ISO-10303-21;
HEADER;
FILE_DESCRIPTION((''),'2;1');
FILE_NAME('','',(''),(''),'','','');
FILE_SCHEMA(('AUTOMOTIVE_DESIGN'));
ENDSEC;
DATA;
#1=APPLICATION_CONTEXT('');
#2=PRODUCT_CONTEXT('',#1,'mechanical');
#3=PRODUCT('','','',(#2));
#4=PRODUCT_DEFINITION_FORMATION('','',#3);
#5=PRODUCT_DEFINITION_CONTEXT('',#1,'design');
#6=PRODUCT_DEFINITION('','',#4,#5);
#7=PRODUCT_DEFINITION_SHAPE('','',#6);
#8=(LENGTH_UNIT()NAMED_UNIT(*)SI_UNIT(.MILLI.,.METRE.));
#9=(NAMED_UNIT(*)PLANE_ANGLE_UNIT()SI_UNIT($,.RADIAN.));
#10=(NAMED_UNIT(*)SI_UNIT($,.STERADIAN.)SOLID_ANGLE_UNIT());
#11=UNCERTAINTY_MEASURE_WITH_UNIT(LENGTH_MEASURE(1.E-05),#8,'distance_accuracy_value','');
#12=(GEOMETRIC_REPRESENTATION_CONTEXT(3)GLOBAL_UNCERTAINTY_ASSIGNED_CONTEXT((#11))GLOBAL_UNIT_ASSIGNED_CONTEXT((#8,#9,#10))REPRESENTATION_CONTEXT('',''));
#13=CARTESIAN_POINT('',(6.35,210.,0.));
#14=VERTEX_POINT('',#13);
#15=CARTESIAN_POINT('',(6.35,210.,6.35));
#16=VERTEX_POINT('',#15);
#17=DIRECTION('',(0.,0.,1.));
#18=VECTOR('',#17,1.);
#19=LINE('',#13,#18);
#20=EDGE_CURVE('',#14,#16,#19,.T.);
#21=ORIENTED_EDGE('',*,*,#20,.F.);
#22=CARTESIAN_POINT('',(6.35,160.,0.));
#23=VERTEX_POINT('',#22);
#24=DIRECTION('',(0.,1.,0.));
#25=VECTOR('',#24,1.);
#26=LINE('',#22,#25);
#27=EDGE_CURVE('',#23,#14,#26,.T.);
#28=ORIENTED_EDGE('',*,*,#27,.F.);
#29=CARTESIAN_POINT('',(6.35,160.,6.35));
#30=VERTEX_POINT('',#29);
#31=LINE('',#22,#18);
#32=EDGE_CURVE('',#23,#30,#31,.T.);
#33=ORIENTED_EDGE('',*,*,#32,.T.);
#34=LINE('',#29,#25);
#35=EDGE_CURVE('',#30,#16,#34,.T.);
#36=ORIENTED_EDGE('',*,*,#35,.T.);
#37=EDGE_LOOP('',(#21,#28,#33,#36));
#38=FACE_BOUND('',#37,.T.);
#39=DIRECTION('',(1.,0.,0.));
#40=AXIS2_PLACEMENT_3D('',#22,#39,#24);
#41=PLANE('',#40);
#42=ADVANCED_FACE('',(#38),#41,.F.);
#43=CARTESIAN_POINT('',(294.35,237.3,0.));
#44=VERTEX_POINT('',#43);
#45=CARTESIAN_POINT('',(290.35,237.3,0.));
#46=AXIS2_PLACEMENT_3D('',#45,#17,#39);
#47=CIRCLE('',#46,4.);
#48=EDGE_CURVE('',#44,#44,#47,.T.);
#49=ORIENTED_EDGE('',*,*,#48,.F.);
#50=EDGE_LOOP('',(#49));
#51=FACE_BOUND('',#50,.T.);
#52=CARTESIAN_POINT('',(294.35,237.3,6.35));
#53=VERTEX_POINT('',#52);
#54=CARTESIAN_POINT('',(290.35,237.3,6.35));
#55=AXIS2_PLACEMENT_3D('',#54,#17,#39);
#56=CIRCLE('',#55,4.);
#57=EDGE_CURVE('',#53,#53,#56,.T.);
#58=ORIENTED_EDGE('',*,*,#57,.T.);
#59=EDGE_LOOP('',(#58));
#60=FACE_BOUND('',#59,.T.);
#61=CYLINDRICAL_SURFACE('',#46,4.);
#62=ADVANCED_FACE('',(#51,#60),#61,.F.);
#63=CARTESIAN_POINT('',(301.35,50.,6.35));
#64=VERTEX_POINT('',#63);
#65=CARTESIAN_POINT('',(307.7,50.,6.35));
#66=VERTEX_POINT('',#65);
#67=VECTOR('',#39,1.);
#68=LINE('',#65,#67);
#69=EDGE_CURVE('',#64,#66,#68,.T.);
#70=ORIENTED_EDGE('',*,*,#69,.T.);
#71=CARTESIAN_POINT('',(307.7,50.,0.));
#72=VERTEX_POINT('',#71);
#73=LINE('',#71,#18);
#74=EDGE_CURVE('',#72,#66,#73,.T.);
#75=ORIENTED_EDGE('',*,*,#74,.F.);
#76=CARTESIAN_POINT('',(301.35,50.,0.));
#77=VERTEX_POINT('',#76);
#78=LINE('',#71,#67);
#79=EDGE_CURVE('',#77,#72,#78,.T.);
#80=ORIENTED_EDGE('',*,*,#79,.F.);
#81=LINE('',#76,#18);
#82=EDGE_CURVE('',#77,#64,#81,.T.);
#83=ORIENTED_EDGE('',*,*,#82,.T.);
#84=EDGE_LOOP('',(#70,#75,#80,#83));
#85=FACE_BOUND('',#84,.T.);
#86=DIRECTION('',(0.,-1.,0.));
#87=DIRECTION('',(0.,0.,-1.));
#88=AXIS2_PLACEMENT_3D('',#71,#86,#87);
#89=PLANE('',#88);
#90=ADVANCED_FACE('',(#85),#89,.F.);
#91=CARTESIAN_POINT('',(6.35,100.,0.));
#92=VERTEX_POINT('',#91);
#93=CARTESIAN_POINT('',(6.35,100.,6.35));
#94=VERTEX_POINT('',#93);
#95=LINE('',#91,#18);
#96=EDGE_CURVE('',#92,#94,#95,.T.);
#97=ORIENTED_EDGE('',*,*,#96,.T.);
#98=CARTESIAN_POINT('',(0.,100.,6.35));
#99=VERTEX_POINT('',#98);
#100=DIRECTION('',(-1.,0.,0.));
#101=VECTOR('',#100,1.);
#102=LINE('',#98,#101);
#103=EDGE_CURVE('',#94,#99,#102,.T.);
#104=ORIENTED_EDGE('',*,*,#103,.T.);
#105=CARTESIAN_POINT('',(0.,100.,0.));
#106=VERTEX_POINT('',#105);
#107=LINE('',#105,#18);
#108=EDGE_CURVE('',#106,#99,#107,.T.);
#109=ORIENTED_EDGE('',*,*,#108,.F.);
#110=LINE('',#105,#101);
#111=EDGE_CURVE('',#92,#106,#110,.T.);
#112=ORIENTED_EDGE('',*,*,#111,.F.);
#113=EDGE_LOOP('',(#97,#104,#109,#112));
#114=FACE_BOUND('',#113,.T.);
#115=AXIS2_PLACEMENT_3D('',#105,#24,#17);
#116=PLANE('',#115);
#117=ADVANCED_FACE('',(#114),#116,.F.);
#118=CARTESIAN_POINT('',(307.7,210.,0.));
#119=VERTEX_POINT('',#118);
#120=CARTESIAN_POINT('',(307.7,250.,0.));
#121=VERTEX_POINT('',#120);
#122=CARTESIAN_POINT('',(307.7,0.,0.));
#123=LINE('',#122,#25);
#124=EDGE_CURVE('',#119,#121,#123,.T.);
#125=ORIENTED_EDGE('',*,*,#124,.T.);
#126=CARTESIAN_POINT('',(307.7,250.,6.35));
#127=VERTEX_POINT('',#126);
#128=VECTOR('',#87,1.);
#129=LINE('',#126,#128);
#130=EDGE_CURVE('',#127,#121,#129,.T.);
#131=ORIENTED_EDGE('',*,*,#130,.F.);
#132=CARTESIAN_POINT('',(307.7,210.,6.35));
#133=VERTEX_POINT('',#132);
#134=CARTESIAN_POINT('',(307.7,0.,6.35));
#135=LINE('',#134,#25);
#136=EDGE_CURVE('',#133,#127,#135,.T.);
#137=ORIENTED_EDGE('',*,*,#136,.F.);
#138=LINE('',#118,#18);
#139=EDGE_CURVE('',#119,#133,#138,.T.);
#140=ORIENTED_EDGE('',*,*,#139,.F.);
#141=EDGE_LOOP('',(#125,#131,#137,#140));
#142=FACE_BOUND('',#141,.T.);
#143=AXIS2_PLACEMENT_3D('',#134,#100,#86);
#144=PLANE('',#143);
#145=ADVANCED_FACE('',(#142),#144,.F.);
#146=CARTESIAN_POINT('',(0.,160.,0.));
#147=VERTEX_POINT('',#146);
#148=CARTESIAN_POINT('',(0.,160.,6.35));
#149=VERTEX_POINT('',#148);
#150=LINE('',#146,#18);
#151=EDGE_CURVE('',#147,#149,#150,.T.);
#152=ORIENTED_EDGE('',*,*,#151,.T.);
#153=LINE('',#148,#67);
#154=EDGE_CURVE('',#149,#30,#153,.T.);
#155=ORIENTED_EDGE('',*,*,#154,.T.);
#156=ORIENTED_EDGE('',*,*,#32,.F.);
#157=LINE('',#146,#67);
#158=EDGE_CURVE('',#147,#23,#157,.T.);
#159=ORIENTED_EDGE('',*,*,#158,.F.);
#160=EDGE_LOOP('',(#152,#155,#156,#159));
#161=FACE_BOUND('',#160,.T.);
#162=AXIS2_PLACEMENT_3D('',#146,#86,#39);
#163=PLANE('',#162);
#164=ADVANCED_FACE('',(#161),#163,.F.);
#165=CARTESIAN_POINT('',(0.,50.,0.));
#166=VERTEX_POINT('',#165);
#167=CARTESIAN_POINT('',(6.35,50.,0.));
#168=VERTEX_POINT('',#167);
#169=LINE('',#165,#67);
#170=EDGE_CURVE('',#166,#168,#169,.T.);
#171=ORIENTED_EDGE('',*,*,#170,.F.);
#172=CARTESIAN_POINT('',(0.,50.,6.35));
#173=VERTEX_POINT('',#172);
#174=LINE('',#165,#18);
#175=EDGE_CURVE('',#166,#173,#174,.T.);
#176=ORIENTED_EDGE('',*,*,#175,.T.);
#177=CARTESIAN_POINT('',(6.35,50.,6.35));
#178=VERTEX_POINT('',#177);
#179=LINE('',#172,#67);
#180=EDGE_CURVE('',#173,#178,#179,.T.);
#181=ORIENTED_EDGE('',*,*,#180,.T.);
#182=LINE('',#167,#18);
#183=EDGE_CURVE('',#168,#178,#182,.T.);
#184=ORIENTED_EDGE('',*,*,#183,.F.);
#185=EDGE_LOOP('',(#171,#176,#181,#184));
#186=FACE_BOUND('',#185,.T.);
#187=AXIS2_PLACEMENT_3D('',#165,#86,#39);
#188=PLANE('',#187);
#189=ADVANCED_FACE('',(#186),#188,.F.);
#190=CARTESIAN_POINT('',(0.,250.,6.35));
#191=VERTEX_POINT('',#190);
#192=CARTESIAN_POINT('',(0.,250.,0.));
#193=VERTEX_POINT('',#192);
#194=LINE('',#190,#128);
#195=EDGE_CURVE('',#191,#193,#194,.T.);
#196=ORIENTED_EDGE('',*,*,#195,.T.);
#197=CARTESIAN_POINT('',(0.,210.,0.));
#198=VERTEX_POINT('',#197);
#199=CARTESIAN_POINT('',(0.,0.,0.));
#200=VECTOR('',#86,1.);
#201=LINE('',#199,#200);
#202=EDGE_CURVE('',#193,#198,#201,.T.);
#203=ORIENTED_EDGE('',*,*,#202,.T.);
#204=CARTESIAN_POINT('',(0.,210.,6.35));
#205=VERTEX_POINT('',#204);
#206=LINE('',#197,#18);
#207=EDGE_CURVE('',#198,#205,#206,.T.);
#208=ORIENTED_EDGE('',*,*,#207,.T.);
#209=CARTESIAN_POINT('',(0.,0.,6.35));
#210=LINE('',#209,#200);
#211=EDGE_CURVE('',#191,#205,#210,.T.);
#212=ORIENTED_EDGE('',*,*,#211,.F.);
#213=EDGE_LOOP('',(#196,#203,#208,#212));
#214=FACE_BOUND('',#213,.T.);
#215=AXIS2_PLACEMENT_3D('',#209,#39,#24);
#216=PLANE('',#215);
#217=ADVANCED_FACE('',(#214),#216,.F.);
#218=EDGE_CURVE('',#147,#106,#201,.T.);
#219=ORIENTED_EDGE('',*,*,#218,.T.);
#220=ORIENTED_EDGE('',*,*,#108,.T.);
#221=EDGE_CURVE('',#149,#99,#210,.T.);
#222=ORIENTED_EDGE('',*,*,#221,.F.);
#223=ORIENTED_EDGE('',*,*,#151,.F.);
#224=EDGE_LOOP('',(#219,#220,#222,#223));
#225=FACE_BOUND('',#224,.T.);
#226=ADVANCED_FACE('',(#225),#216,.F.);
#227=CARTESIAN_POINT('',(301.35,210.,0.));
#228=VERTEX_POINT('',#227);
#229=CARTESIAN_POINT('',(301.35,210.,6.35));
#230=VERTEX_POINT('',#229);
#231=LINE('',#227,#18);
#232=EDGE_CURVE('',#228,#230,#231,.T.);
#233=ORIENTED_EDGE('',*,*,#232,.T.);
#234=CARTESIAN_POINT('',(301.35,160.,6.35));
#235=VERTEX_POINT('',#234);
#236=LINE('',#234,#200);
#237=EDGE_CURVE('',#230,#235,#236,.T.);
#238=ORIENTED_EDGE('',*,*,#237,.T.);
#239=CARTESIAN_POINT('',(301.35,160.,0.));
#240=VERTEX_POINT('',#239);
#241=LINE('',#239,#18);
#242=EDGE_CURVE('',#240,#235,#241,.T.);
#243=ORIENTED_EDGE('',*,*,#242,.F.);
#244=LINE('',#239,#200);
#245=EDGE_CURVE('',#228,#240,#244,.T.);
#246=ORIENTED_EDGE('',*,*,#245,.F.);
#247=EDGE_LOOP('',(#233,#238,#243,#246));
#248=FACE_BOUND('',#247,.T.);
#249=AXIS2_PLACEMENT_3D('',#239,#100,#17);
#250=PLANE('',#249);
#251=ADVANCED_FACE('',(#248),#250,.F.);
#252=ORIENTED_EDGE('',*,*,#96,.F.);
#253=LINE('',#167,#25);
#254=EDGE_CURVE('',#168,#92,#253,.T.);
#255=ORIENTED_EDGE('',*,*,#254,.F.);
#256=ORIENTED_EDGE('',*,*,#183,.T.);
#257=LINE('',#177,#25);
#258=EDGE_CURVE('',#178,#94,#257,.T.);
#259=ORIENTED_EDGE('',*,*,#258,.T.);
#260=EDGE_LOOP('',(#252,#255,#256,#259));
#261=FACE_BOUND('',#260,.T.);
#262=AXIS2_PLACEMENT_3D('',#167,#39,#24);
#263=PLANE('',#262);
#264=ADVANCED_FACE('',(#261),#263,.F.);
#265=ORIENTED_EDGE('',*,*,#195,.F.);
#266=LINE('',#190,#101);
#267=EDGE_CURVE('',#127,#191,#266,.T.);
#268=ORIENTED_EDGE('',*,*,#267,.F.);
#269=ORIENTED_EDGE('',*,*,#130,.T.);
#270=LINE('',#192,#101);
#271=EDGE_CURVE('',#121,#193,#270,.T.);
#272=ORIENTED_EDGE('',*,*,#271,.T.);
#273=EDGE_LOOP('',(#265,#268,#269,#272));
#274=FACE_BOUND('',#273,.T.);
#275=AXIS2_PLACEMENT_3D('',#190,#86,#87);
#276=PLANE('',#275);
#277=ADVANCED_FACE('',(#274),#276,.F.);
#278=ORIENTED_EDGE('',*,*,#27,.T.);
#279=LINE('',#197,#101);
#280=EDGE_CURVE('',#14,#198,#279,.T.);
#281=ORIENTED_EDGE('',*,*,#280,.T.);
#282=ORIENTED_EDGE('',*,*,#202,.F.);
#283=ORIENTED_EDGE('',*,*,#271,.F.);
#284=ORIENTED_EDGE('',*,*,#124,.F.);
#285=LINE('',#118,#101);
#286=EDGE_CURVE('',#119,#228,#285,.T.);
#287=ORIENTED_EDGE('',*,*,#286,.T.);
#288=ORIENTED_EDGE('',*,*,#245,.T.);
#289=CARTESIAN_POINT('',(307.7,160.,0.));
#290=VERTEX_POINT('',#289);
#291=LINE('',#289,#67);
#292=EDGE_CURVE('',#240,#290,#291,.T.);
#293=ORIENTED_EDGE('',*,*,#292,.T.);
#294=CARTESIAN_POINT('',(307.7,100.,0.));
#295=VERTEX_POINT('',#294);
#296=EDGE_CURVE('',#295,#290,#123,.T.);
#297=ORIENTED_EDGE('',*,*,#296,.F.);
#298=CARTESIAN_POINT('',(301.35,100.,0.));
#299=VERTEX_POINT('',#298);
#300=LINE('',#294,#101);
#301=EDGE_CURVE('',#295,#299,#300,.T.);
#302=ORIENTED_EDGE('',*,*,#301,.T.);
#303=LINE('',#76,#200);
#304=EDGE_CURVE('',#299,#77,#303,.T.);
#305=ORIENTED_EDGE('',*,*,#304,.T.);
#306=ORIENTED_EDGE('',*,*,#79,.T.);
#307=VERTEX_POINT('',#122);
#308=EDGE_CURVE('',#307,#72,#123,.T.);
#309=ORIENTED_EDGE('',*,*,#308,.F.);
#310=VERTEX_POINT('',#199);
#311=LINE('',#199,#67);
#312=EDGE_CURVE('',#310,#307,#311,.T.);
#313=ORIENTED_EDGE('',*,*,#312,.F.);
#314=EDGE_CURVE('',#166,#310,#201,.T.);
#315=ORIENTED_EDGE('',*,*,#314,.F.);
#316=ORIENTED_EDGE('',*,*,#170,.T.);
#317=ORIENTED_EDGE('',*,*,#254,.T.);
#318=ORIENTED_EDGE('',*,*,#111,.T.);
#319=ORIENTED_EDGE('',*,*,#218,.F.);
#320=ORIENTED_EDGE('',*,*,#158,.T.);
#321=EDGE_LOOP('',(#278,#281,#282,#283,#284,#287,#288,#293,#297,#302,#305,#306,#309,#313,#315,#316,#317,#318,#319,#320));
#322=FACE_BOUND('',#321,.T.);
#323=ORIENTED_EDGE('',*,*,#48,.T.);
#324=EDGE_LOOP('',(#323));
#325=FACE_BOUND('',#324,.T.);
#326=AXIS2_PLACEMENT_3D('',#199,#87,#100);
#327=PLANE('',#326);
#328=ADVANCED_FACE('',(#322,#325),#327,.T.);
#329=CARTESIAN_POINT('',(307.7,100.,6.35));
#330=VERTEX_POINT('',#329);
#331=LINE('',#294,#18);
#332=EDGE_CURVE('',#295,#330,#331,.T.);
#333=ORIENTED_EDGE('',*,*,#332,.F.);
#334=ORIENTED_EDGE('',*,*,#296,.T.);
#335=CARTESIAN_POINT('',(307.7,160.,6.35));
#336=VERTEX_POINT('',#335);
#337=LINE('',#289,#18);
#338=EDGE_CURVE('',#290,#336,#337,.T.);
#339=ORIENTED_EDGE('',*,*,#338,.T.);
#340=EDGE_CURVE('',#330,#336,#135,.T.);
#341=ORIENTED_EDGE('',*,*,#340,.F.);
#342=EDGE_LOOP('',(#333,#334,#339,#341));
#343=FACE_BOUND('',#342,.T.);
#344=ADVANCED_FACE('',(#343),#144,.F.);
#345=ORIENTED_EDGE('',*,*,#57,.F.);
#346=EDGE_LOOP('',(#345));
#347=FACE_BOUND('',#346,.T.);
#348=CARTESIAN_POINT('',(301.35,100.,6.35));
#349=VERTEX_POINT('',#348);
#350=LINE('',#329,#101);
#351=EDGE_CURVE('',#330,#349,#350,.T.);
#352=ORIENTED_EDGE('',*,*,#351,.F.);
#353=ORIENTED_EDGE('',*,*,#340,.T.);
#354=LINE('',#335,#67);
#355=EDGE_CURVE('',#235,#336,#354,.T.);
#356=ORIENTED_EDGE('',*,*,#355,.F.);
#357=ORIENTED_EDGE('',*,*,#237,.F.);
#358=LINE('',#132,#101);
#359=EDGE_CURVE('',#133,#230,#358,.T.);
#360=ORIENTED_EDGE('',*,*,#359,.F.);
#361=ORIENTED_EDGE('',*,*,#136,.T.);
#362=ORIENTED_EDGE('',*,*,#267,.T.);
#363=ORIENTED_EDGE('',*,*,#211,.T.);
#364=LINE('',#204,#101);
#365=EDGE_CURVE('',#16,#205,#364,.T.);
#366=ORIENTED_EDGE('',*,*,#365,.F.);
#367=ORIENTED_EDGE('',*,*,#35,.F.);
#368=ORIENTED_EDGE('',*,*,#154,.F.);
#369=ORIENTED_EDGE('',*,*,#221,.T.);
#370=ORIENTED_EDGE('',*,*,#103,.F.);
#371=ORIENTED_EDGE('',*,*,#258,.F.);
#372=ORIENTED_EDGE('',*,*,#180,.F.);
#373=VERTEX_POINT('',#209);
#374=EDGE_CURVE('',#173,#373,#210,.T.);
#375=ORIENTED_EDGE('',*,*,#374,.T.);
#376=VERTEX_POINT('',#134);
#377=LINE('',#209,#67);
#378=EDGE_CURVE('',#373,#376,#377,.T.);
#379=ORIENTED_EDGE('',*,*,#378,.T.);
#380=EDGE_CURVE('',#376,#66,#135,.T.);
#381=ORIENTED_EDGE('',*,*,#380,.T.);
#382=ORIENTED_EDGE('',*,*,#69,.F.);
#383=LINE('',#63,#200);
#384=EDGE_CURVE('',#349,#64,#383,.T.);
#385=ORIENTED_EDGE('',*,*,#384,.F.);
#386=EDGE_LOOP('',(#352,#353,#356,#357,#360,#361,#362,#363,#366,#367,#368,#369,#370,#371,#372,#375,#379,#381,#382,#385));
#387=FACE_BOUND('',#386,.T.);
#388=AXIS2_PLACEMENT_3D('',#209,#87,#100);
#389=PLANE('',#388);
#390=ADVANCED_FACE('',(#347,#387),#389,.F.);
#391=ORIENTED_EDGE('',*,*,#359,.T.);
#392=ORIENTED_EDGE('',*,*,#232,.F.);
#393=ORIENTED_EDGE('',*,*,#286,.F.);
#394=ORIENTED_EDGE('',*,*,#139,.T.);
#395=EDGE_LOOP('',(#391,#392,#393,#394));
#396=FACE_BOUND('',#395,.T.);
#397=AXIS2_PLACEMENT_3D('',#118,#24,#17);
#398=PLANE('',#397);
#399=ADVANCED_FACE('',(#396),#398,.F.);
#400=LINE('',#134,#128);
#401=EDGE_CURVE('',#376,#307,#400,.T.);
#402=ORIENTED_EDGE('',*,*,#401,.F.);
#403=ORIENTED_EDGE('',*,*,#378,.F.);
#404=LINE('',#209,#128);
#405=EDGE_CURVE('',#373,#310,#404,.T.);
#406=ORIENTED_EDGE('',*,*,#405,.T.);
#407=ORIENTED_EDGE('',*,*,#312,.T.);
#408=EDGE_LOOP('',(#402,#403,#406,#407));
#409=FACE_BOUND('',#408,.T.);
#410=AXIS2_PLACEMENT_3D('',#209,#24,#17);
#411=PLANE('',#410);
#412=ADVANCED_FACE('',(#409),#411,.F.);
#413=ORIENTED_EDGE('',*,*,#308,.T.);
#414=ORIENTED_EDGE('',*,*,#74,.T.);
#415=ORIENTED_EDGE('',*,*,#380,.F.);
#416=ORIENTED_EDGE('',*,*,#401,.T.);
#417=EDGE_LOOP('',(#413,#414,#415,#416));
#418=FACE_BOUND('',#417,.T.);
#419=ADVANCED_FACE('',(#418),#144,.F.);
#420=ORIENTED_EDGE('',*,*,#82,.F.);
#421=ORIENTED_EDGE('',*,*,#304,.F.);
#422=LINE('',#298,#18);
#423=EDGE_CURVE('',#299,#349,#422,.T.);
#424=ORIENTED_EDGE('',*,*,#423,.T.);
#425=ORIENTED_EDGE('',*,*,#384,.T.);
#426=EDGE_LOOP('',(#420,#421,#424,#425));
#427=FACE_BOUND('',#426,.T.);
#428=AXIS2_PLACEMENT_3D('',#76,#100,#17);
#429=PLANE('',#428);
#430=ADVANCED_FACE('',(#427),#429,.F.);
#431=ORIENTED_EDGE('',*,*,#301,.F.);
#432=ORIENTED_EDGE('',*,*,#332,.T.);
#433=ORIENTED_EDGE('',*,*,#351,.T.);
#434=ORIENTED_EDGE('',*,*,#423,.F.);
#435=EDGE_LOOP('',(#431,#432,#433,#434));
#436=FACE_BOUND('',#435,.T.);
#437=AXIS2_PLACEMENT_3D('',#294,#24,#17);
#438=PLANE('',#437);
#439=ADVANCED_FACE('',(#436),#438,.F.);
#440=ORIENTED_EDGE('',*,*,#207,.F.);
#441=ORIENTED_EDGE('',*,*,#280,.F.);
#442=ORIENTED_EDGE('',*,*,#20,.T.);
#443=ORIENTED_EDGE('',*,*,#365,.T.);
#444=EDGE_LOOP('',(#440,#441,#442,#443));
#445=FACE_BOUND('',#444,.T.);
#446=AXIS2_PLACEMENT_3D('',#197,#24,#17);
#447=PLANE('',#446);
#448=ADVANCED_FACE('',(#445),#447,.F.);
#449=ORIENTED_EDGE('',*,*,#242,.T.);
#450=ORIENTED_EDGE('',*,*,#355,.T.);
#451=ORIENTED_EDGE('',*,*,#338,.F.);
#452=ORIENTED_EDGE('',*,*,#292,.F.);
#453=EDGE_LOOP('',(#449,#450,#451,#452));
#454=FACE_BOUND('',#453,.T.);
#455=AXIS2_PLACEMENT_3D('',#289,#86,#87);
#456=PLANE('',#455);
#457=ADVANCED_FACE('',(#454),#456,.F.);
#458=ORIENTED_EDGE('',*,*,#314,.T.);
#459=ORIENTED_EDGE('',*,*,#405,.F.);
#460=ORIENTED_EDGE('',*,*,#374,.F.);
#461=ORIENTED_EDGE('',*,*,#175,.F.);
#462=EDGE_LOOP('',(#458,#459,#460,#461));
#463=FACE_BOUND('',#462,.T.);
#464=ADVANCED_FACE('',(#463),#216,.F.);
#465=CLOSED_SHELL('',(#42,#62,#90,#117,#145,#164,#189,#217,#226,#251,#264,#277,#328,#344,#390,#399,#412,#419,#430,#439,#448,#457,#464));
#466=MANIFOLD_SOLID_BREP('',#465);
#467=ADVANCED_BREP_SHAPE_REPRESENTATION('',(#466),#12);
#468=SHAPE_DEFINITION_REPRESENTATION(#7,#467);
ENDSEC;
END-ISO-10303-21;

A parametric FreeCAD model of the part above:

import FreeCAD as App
import Part
import Sketcher
from FreeCAD import Vector


def add_polygon(sketch, points):
    """Adds a closed chain of lines whose ends are joined by coincident constraints."""
    first, n = sketch.GeometryCount, len(points)
    for a, b in zip(points, points[1:] + points[:1]):
        sketch.addGeometry(Part.LineSegment(App.Vector(*a, 0), App.Vector(*b, 0)), False)
    for i in range(n):
        sketch.addConstraint(Sketcher.Constraint("Coincident", first + i, 2, first + (i + 1) % n, 1))

doc = App.newDocument("Part")
body = doc.addObject("PartDesign::Body", "Body")

# Sketch on XY plane
sketch1 = doc.addObject("Sketcher::SketchObject", "Sketch")
body.addObject(sketch1)
sketch1.AttachmentSupport = (doc.XY_Plane, [""])
sketch1.MapMode = "FlatFace"
add_polygon(sketch1, [(0, 250), (0, 0), (308, 0), (308, 250)])  # lines 0-3
sketch1.addConstraint(Sketcher.Constraint("Vertical", 0))
sketch1.addConstraint(Sketcher.Constraint("Horizontal", 1))
sketch1.addConstraint(Sketcher.Constraint("Vertical", 2))
sketch1.addConstraint(Sketcher.Constraint("Horizontal", 3))
sketch1.addConstraint(Sketcher.Constraint("Coincident", 0, 2, -1, 1))
sketch1.addConstraint(Sketcher.Constraint("DistanceY", 0, 2, 0, 1, 250.0))
sketch1.addConstraint(Sketcher.Constraint("DistanceX", 1, 1, 1, 2, 307.7))
pad1 = doc.addObject("PartDesign::Pad", "Pad")
body.addObject(pad1)
pad1.Profile = sketch1
pad1.Length = 6.35

# Sketch on XY plane
sketch2 = doc.addObject("Sketcher::SketchObject", "Sketch001")
body.addObject(sketch2)
sketch2.AttachmentSupport = (doc.XY_Plane, [""])
sketch2.MapMode = "FlatFace"
sketch2.AttachmentOffset = App.Placement(Vector(0, 0, 6.35), App.Rotation())
sketch2.addGeometry(Part.Circle(Vector(290.4, 237.3, 0), Vector(0, 0, 1), 4), False)  # 0
add_polygon(sketch2, [(301.4, 100), (301.4, 50), (307.7, 50), (307.7, 100)])  # lines 1-4
add_polygon(sketch2, [(301.4, 210), (301.4, 160), (307.7, 160), (307.7, 210)])  # lines 5-8
add_polygon(sketch2, [(0, 100), (0, 50), (6.3, 50), (6.3, 100)])  # lines 9-12
add_polygon(sketch2, [(0, 210), (0, 160), (6.3, 160), (6.3, 210)])  # lines 13-16
sketch2.addConstraint(Sketcher.Constraint("Vertical", 1))
sketch2.addConstraint(Sketcher.Constraint("Horizontal", 2))
sketch2.addConstraint(Sketcher.Constraint("Vertical", 3))
sketch2.addConstraint(Sketcher.Constraint("Horizontal", 4))
sketch2.addConstraint(Sketcher.Constraint("Vertical", 5))
sketch2.addConstraint(Sketcher.Constraint("Horizontal", 6))
sketch2.addConstraint(Sketcher.Constraint("Vertical", 7))
sketch2.addConstraint(Sketcher.Constraint("Horizontal", 8))
sketch2.addConstraint(Sketcher.Constraint("Vertical", 9))
sketch2.addConstraint(Sketcher.Constraint("Horizontal", 10))
sketch2.addConstraint(Sketcher.Constraint("Vertical", 11))
sketch2.addConstraint(Sketcher.Constraint("Horizontal", 12))
sketch2.addConstraint(Sketcher.Constraint("Vertical", 13))
sketch2.addConstraint(Sketcher.Constraint("Horizontal", 14))
sketch2.addConstraint(Sketcher.Constraint("Vertical", 15))
sketch2.addConstraint(Sketcher.Constraint("Horizontal", 16))
sketch2.addConstraint(Sketcher.Constraint("PointOnObject", 9, 2, -2))
sketch2.addConstraint(Sketcher.Constraint("PointOnObject", 13, 2, -2))
sketch2.addConstraint(Sketcher.Constraint("Horizontal", 2, 2, 9, 2))
sketch2.addConstraint(Sketcher.Constraint("Horizontal", 4, 2, 11, 2))
sketch2.addConstraint(Sketcher.Constraint("Horizontal", 6, 2, 13, 2))
sketch2.addConstraint(Sketcher.Constraint("Horizontal", 8, 2, 15, 2))
sketch2.addConstraint(Sketcher.Constraint("Vertical", 4, 2, 5, 2))
sketch2.addConstraint(Sketcher.Constraint("Vertical", 3, 2, 6, 2))
sketch2.addConstraint(Sketcher.Constraint("Vertical", 11, 2, 14, 2))
sketch2.addConstraint(Sketcher.Constraint("Equal", 8, 10))
sketch2.addConstraint(Sketcher.Constraint("Equal", 3, 5))
sketch2.addConstraint(Sketcher.Constraint("Diameter", 0, 8.0))
sketch2.addConstraint(Sketcher.Constraint("DistanceY", 1, 2, 1, 1, 50.0))
sketch2.addConstraint(Sketcher.Constraint("DistanceY", -1, 1, 1, 2, 50.0))
sketch2.addConstraint(Sketcher.Constraint("DistanceY", -1, 1, 5, 2, 160.0))
sketch2.addConstraint(Sketcher.Constraint("DistanceX", 0, 3, 1, 2, 11.0))
sketch2.addConstraint(Sketcher.Constraint("DistanceX", 10, 2, 1, 2, 295.0))
sketch2.addConstraint(Sketcher.Constraint("DistanceX", 2, 1, 2, 2, 6.35))
sketch2.addConstraint(Sketcher.Constraint("DistanceY", -1, 1, 0, 3, 237.3))
pocket1 = doc.addObject("PartDesign::Pocket", "Pocket")
body.addObject(pocket1)
pocket1.Profile = sketch2
pocket1.Type = "ThroughAll"

doc.recompute()
